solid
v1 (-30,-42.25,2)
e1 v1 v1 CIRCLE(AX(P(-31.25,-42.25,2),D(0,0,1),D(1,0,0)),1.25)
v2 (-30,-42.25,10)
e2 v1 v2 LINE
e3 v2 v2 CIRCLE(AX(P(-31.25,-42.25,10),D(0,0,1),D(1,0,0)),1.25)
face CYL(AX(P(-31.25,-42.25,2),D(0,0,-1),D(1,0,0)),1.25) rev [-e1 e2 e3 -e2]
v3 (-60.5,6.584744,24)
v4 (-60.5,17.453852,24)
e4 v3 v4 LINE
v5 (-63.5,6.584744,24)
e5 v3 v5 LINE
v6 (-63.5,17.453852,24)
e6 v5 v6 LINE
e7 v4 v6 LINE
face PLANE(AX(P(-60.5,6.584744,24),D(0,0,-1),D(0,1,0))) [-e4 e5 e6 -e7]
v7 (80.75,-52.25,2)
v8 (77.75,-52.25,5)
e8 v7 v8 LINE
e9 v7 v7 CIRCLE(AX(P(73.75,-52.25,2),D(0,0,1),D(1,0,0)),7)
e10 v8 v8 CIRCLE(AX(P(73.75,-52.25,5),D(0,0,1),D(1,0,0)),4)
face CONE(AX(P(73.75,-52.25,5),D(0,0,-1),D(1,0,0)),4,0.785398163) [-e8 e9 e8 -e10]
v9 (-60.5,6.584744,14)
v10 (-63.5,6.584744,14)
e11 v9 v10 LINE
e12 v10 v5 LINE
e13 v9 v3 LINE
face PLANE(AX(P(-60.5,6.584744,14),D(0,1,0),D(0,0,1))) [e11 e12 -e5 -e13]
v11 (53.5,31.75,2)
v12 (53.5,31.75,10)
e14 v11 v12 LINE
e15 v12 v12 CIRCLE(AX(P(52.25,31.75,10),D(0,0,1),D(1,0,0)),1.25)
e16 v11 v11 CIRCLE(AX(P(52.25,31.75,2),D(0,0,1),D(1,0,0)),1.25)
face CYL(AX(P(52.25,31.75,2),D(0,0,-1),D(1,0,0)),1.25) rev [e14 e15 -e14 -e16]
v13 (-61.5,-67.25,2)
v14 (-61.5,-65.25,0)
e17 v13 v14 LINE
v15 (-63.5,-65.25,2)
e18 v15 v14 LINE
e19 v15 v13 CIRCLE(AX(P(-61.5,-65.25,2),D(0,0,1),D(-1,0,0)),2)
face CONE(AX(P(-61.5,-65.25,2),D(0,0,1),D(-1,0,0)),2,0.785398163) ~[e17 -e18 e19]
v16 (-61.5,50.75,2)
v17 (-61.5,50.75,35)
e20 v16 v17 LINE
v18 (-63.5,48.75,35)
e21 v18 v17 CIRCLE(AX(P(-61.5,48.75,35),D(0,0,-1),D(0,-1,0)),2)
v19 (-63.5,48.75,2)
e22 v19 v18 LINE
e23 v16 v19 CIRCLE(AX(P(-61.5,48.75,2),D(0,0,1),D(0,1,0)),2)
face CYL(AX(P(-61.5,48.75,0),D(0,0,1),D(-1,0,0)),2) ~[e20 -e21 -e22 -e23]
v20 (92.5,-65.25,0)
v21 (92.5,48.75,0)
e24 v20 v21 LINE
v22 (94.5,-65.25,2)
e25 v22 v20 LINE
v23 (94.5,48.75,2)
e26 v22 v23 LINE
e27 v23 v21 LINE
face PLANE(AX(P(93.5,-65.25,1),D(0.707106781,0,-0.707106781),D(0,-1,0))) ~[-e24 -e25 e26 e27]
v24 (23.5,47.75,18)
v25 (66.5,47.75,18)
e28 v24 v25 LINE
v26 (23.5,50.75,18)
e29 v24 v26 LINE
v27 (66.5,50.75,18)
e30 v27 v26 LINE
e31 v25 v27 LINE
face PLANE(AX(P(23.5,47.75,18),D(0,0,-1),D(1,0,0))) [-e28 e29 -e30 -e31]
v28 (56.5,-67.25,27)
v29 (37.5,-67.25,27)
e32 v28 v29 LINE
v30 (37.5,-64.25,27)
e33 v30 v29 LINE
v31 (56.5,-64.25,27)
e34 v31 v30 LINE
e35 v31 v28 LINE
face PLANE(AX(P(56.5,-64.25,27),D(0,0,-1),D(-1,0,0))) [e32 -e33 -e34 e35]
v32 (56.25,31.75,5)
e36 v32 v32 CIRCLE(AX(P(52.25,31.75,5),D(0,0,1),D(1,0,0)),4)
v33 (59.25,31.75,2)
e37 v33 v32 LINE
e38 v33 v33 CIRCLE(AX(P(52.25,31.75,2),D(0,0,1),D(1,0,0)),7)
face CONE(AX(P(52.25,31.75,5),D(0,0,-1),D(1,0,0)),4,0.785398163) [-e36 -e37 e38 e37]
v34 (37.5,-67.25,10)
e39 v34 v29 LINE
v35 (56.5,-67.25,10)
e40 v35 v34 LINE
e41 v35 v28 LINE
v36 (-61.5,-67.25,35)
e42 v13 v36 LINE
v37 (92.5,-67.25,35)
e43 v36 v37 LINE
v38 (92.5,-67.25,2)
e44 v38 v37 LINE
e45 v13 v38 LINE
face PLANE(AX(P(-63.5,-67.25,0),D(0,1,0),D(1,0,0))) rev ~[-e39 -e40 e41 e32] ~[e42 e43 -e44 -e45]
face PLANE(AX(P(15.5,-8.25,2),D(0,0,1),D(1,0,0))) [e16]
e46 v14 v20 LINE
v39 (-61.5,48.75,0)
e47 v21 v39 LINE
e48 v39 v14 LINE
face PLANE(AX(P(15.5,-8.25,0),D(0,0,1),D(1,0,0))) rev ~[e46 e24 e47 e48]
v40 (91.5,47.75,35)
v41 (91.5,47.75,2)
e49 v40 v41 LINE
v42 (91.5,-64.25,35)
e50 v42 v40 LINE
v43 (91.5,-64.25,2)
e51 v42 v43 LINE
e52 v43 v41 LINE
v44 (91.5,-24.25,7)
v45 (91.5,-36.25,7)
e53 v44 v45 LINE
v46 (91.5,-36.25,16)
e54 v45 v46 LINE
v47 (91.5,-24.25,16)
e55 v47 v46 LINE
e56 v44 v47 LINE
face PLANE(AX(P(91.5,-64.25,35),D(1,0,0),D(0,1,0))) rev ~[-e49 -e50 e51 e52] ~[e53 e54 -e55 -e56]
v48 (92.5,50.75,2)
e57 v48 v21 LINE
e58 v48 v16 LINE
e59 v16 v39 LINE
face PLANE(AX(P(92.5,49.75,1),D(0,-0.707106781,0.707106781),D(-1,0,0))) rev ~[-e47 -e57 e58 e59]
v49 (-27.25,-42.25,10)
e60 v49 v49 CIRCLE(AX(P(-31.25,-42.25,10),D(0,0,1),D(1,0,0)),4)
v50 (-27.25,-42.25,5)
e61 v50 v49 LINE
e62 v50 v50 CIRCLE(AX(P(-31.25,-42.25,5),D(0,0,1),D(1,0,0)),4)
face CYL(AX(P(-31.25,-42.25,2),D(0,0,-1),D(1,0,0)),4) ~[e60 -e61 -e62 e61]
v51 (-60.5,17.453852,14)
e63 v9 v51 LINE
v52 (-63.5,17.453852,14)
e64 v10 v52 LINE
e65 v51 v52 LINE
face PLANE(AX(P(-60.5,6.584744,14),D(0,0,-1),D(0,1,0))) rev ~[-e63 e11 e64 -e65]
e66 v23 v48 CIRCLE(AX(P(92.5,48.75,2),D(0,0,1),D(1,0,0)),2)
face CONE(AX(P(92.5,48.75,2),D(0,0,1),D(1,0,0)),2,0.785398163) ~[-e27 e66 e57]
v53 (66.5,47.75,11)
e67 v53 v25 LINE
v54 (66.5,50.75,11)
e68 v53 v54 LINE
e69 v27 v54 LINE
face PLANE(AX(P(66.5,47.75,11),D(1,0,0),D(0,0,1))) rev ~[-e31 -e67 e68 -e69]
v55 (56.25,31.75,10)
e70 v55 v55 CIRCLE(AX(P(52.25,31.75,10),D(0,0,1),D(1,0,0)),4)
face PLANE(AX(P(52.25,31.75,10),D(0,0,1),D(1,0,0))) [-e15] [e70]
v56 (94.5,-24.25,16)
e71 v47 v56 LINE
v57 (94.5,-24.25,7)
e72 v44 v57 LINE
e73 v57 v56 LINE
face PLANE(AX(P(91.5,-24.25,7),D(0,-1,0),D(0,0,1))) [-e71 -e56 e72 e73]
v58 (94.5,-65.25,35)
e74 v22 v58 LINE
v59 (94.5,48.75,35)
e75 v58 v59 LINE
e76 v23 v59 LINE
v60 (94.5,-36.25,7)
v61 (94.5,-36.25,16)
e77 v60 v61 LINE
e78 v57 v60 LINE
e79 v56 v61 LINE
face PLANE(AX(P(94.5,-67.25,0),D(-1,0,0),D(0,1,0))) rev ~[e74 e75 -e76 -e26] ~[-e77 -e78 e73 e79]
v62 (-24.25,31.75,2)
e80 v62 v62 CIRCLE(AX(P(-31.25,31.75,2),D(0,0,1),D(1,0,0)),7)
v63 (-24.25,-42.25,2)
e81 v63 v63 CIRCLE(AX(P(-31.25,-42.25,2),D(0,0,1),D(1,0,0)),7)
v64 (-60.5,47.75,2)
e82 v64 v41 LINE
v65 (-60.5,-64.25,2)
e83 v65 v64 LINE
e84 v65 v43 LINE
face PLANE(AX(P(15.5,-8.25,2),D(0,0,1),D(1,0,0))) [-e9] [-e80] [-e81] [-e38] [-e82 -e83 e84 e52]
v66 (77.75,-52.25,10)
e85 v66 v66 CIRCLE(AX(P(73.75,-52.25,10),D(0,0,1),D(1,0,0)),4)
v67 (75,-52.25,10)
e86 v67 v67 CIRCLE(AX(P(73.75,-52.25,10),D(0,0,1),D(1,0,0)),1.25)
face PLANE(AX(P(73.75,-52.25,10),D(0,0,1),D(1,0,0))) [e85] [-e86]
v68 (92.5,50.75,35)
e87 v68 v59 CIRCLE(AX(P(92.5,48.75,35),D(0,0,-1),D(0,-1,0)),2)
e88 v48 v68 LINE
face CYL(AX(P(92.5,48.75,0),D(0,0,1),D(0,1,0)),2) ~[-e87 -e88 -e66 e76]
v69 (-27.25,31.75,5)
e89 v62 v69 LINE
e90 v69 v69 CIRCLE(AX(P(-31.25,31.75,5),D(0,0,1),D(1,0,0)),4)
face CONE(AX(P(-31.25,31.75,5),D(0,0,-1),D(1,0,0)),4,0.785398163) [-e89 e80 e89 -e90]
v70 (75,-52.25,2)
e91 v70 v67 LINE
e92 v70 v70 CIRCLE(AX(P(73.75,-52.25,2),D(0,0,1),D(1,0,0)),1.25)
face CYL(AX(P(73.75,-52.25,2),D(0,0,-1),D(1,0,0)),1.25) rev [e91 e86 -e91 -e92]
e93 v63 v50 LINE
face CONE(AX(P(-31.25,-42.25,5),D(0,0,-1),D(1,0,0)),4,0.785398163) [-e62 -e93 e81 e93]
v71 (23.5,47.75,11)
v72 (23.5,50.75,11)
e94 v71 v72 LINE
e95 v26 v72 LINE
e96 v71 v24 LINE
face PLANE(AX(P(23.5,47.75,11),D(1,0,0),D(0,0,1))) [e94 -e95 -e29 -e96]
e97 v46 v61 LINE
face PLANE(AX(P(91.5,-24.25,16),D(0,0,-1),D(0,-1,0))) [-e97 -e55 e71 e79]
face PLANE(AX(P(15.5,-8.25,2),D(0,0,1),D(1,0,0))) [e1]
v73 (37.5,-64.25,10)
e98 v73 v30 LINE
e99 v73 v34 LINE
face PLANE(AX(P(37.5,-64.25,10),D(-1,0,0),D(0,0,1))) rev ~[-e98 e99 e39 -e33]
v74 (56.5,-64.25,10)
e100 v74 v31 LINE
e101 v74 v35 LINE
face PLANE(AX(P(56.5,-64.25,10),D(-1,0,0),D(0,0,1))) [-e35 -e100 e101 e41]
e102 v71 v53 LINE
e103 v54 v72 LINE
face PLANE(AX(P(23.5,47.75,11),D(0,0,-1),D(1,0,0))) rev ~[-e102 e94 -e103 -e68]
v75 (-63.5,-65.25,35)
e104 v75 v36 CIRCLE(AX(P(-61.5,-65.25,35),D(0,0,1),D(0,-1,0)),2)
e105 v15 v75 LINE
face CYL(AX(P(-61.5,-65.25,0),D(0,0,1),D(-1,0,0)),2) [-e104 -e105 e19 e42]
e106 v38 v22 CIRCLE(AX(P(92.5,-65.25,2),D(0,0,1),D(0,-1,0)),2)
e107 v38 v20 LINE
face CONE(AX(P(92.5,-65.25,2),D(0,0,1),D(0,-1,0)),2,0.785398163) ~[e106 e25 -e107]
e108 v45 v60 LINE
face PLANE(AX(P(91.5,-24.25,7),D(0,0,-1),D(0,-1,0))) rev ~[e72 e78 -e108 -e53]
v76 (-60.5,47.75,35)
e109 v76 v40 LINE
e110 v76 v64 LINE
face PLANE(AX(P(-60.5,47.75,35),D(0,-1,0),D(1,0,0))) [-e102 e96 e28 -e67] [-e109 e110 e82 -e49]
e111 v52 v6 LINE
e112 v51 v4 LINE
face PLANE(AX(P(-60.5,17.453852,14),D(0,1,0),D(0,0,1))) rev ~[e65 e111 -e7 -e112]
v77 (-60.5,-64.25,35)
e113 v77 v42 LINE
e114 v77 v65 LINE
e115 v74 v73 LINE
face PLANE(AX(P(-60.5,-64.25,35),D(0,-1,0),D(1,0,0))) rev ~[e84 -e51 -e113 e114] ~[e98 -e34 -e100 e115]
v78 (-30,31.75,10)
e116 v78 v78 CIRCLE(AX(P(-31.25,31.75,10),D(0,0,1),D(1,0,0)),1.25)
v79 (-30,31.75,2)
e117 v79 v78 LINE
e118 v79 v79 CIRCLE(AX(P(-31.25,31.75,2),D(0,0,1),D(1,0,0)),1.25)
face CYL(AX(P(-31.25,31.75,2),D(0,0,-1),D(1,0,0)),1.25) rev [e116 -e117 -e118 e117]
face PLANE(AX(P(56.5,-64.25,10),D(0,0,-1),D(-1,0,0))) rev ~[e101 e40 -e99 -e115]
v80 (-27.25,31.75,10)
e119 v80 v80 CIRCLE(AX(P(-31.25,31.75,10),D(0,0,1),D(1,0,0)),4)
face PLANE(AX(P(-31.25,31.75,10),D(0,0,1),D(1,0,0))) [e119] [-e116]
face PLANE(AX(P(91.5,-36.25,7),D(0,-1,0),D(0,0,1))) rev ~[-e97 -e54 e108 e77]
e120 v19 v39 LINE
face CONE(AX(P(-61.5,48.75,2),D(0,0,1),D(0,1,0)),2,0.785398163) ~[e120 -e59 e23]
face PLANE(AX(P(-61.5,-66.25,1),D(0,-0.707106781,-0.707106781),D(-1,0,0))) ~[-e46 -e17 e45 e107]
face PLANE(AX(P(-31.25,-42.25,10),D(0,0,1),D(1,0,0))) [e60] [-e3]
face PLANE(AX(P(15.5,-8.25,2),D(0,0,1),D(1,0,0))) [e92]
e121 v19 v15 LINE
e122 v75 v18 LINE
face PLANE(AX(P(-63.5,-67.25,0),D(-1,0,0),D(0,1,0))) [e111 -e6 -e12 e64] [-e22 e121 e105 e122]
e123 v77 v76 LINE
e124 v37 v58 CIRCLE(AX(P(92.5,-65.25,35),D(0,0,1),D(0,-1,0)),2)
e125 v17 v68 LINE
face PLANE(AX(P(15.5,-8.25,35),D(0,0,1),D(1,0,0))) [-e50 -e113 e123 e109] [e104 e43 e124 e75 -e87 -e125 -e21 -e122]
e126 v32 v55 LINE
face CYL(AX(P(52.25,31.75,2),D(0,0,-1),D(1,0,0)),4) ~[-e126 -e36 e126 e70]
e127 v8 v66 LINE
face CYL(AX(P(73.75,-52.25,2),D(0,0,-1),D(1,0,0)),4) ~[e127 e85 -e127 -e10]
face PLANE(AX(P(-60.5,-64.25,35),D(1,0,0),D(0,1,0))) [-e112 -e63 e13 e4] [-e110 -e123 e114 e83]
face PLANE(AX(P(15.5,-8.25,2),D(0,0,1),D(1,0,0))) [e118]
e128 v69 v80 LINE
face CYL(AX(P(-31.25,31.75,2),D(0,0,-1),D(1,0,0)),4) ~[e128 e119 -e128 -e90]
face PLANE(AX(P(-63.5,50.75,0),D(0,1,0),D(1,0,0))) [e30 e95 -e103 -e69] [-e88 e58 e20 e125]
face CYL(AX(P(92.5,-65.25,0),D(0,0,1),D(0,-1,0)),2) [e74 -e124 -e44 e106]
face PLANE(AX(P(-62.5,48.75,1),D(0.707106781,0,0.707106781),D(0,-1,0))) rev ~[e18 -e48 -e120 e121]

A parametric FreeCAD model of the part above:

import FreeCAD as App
import Part
import Sketcher


def edges_at(feature, points):
    """Names of the edges that pass closest to the given points."""
    edges = feature.Shape.Edges
    near = lambda p: min(range(len(edges)), key=lambda i: edges[i].distToShape(Part.Vertex(*p))[0])
    return sorted({f"Edge{near(p) + 1}" for p in points})


def add_polygon(sketch, points):
    """Adds a closed chain of lines whose ends are joined by coincident constraints."""
    first, n = sketch.GeometryCount, len(points)
    for a, b in zip(points, points[1:] + points[:1]):
        sketch.addGeometry(Part.LineSegment(App.Vector(*a, 0), App.Vector(*b, 0)), False)
    for i in range(n):
        sketch.addConstraint(Sketcher.Constraint("Coincident", first + i, 2, first + (i + 1) % n, 1))

doc = App.newDocument("Part")
body = doc.addObject("PartDesign::Body", "Body")

# Sketch on XY plane
sketch1 = body.newObject("Sketcher::SketchObject", "Sketch")
sketch1.AttachmentSupport = (doc.getObject("XY_Plane"), [""])
sketch1.MapMode = "FlatFace"
add_polygon(sketch1, [(-64, 51), (-64, -67), (94, -67), (94, 51)])  # lines 0-3
sketch1.addConstraint([
    Sketcher.Constraint("Vertical", 0),
    Sketcher.Constraint("Horizontal", 1),
    Sketcher.Constraint("Vertical", 2),
    Sketcher.Constraint("Horizontal", 3),
    Sketcher.Constraint("DistanceX", 1, 1, 1, 2, 158.0),
    Sketcher.Constraint("DistanceY", 0, 2, 0, 1, 118.0),
    Sketcher.Constraint("DistanceX", 0, 2, -1, 1, 63.5),
    Sketcher.Constraint("DistanceY", 0, 2, -1, 1, 67.25),
])
pad1 = body.newObject("PartDesign::Pad", "Pad")
pad1.Profile = sketch1
pad1.Length = 35

# Sketch on XY plane
sketch2 = body.newObject("Sketcher::SketchObject", "Sketch001")
sketch2.AttachmentSupport = (doc.getObject("XY_Plane"), [""])
sketch2.MapMode = "FlatFace"
sketch2.AttachmentOffset = App.Placement(App.Vector(0, 0, 35), App.Rotation())
add_polygon(sketch2, [(-60, 48), (-60, -64), (92, -64), (92, 48)])  # lines 0-3
sketch2.addConstraint([
    Sketcher.Constraint("Vertical", 0),
    Sketcher.Constraint("Horizontal", 1),
    Sketcher.Constraint("Vertical", 2),
    Sketcher.Constraint("Horizontal", 3),
    Sketcher.Constraint("DistanceX", 1, 1, 1, 2, 152.0),
    Sketcher.Constraint("DistanceY", 0, 2, 0, 1, 112.0),
    Sketcher.Constraint("DistanceX", 0, 2, -1, 1, 60.5),
    Sketcher.Constraint("DistanceY", 0, 2, -1, 1, 64.25),
])
pocket1 = body.newObject("PartDesign::Pocket", "Pocket")
pocket1.Profile = sketch2
pocket1.Length = 33

# Sketch on XY plane
sketch3 = body.newObject("Sketcher::SketchObject", "Sketch002")
sketch3.AttachmentSupport = (doc.getObject("XY_Plane"), [""])
sketch3.MapMode = "FlatFace"
sketch3.AttachmentOffset = App.Placement(App.Vector(0, 0, 2), App.Rotation())
sketch3.addGeometry([
    Part.Circle(App.Vector(-31.2, 31.8, 0), App.Vector(0, 0, 1), 4),  # 0
    Part.Circle(App.Vector(-31.2, 31.8, 0), App.Vector(0, 0, 1), 1.2),  # 1
    Part.Circle(App.Vector(52.2, 31.8, 0), App.Vector(0, 0, 1), 4),  # 2
    Part.Circle(App.Vector(52.2, 31.8, 0), App.Vector(0, 0, 1), 1.2),  # 3
    Part.Circle(App.Vector(73.8, -52.2, 0), App.Vector(0, 0, 1), 4),  # 4
    Part.Circle(App.Vector(73.8, -52.2, 0), App.Vector(0, 0, 1), 1.2),  # 5
    Part.Circle(App.Vector(-31.2, -42.2, 0), App.Vector(0, 0, 1), 4),  # 6
    Part.Circle(App.Vector(-31.2, -42.2, 0), App.Vector(0, 0, 1), 1.2),  # 7
], False)
sketch3.addConstraint([
    Sketcher.Constraint("Coincident", 1, 3, 0, 3),
    Sketcher.Constraint("Coincident", 3, 3, 2, 3),
    Sketcher.Constraint("Coincident", 5, 3, 4, 3),
    Sketcher.Constraint("Coincident", 7, 3, 6, 3),
    Sketcher.Constraint("Equal", 0, 2),
    Sketcher.Constraint("Equal", 1, 3),
    Sketcher.Constraint("Equal", 2, 4),
    Sketcher.Constraint("Equal", 3, 5),
    Sketcher.Constraint("Equal", 4, 6),
    Sketcher.Constraint("Equal", 5, 7),
    Sketcher.Constraint("Horizontal", 1, 3, 2, 3),
    Sketcher.Constraint("Vertical", 1, 3, 6, 3),
    Sketcher.Constraint("Diameter", 0, 8.0),
    Sketcher.Constraint("Diameter", 1, 2.5),
    Sketcher.Constraint("DistanceY", 4, 3, 2, 3, 84.0),
    Sketcher.Constraint("DistanceX", 0, 3, 4, 3, 105.0),
    Sketcher.Constraint("DistanceY", 6, 3, 0, 3, 74.0),
    Sketcher.Constraint("DistanceX", 0, 3, 2, 3, 83.5),
    Sketcher.Constraint("DistanceX", 0, 3, -1, 1, 31.25),
    Sketcher.Constraint("DistanceY", -1, 1, 0, 3, 31.75),
])
pad2 = body.newObject("PartDesign::Pad", "Pad001")
pad2.Profile = sketch3
pad2.Length = 8
doc.recompute()

chamfer = body.newObject("PartDesign::Chamfer", "Chamfer")
chamfer.Base = (pad2, edges_at(pad2, [
    (48.25, 31.75, 2),
    (-35.25, 31.75, 2),
    (-35.25, -42.25, 2),
    (69.75, -52.25, 2),
]))
chamfer.Size = 3

# Sketch on YZ plane
sketch4 = body.newObject("Sketcher::SketchObject", "Sketch003")
sketch4.AttachmentSupport = (doc.getObject("YZ_Plane"), [""])
sketch4.MapMode = "FlatFace"
sketch4.AttachmentOffset = App.Placement(App.Vector(0, 0, -60.5), App.Rotation())
add_polygon(sketch4, [(7, 24), (7, 14), (17, 14), (17, 24)])  # lines 0-3
sketch4.addConstraint([
    Sketcher.Constraint("Vertical", 0),
    Sketcher.Constraint("Horizontal", 1),
    Sketcher.Constraint("Vertical", 2),
    Sketcher.Constraint("Horizontal", 3),
    Sketcher.Constraint("DistanceY", 0, 2, 0, 1, 10.0),
    Sketcher.Constraint("DistanceY", -1, 1, 0, 2, 14.0),
    Sketcher.Constraint("DistanceX", 1, 1, 1, 2, 10.869108),
    Sketcher.Constraint("DistanceX", -1, 1, 0, 2, 6.584744),
])
pocket2 = body.newObject("PartDesign::Pocket", "Pocket001")
pocket2.Profile = sketch4
pocket2.Length = 3

# Sketch on XZ plane
sketch5 = body.newObject("Sketcher::SketchObject", "Sketch004")
sketch5.AttachmentSupport = (doc.getObject("XZ_Plane"), [""])
sketch5.MapMode = "FlatFace"
sketch5.AttachmentOffset = App.Placement(App.Vector(0, 0, 64.25), App.Rotation())
add_polygon(sketch5, [(56, 27), (56, 10), (38, 10), (38, 27)])  # lines 0-3
sketch5.addConstraint([
    Sketcher.Constraint("Vertical", 0),
    Sketcher.Constraint("Horizontal", 1),
    Sketcher.Constraint("Vertical", 2),
    Sketcher.Constraint("Horizontal", 3),
    Sketcher.Constraint("DistanceX", 1, 2, 1, 1, 19.0),
    Sketcher.Constraint("DistanceY", 0, 2, 0, 1, 17.0),
    Sketcher.Constraint("DistanceY", -1, 1, 0, 2, 10.0),
    Sketcher.Constraint("DistanceX", -1, 1, 0, 2, 56.5),
])
pocket3 = body.newObject("PartDesign::Pocket", "Pocket002")
pocket3.Profile = sketch5
pocket3.Type = "ThroughAll"
pocket3.Reversed = True

# Sketch on XZ plane
sketch6 = body.newObject("Sketcher::SketchObject", "Sketch005")
sketch6.AttachmentSupport = (doc.getObject("XZ_Plane"), [""])
sketch6.MapMode = "FlatFace"
sketch6.AttachmentOffset = App.Placement(App.Vector(0, 0, -47.75), App.Rotation())
add_polygon(sketch6, [(24, 18), (24, 11), (66, 11), (66, 18)])  # lines 0-3
sketch6.addConstraint([
    Sketcher.Constraint("Vertical", 0),
    Sketcher.Constraint("Horizontal", 1),
    Sketcher.Constraint("Vertical", 2),
    Sketcher.Constraint("Horizontal", 3),
    Sketcher.Constraint("DistanceX", 1, 1, 1, 2, 43.0),
    Sketcher.Constraint("DistanceY", 0, 2, 0, 1, 7.0),
    Sketcher.Constraint("DistanceY", -1, 1, 0, 2, 11.0),
    Sketcher.Constraint("DistanceX", -1, 1, 0, 2, 23.5),
])
pocket4 = body.newObject("PartDesign::Pocket", "Pocket003")
pocket4.Profile = sketch6
pocket4.Type = "ThroughAll"
doc.recompute()

fillet = body.newObject("PartDesign::Fillet", "Fillet")
fillet.Base = (pocket4, edges_at(pocket4, [
    (94.5, -67.25, 17.5),
    (-63.5, -67.25, 17.5),
    (-63.5, 50.75, 17.5),
    (94.5, 50.75, 17.5),
]))
fillet.Radius = 2
doc.recompute()

chamfer2 = body.newObject("PartDesign::Chamfer", "Chamfer001")
chamfer2.Base = (fillet, edges_at(fillet, [
    (94.5, -8.25, 0),
    (15.5, 50.75, 0),
    (-63.5, -8.25, 0),
    (15.5, -67.25, 0),
]))
chamfer2.Size = 2

# Sketch on YZ plane
sketch7 = body.newObject("Sketcher::SketchObject", "Sketch006")
sketch7.AttachmentSupport = (doc.getObject("YZ_Plane"), [""])
sketch7.MapMode = "FlatFace"
sketch7.AttachmentOffset = App.Placement(App.Vector(0, 0, 91.5), App.Rotation())
add_polygon(sketch7, [(-24, 16), (-24, 7), (-36, 7), (-36, 16)])  # lines 0-3
sketch7.addConstraint([
    Sketcher.Constraint("Vertical", 0),
    Sketcher.Constraint("Horizontal", 1),
    Sketcher.Constraint("Vertical", 2),
    Sketcher.Constraint("Horizontal", 3),
    Sketcher.Constraint("DistanceX", 1, 2, 1, 1, 12.0),
    Sketcher.Constraint("DistanceY", 0, 2, 0, 1, 9.0),
    Sketcher.Constraint("DistanceY", -1, 1, 0, 2, 7.0),
    Sketcher.Constraint("DistanceX", 0, 2, -1, 1, 24.25),
])
pocket5 = body.newObject("PartDesign::Pocket", "Pocket004")
pocket5.Profile = sketch7
pocket5.Type = "ThroughAll"
pocket5.Reversed = True

doc.recompute()
